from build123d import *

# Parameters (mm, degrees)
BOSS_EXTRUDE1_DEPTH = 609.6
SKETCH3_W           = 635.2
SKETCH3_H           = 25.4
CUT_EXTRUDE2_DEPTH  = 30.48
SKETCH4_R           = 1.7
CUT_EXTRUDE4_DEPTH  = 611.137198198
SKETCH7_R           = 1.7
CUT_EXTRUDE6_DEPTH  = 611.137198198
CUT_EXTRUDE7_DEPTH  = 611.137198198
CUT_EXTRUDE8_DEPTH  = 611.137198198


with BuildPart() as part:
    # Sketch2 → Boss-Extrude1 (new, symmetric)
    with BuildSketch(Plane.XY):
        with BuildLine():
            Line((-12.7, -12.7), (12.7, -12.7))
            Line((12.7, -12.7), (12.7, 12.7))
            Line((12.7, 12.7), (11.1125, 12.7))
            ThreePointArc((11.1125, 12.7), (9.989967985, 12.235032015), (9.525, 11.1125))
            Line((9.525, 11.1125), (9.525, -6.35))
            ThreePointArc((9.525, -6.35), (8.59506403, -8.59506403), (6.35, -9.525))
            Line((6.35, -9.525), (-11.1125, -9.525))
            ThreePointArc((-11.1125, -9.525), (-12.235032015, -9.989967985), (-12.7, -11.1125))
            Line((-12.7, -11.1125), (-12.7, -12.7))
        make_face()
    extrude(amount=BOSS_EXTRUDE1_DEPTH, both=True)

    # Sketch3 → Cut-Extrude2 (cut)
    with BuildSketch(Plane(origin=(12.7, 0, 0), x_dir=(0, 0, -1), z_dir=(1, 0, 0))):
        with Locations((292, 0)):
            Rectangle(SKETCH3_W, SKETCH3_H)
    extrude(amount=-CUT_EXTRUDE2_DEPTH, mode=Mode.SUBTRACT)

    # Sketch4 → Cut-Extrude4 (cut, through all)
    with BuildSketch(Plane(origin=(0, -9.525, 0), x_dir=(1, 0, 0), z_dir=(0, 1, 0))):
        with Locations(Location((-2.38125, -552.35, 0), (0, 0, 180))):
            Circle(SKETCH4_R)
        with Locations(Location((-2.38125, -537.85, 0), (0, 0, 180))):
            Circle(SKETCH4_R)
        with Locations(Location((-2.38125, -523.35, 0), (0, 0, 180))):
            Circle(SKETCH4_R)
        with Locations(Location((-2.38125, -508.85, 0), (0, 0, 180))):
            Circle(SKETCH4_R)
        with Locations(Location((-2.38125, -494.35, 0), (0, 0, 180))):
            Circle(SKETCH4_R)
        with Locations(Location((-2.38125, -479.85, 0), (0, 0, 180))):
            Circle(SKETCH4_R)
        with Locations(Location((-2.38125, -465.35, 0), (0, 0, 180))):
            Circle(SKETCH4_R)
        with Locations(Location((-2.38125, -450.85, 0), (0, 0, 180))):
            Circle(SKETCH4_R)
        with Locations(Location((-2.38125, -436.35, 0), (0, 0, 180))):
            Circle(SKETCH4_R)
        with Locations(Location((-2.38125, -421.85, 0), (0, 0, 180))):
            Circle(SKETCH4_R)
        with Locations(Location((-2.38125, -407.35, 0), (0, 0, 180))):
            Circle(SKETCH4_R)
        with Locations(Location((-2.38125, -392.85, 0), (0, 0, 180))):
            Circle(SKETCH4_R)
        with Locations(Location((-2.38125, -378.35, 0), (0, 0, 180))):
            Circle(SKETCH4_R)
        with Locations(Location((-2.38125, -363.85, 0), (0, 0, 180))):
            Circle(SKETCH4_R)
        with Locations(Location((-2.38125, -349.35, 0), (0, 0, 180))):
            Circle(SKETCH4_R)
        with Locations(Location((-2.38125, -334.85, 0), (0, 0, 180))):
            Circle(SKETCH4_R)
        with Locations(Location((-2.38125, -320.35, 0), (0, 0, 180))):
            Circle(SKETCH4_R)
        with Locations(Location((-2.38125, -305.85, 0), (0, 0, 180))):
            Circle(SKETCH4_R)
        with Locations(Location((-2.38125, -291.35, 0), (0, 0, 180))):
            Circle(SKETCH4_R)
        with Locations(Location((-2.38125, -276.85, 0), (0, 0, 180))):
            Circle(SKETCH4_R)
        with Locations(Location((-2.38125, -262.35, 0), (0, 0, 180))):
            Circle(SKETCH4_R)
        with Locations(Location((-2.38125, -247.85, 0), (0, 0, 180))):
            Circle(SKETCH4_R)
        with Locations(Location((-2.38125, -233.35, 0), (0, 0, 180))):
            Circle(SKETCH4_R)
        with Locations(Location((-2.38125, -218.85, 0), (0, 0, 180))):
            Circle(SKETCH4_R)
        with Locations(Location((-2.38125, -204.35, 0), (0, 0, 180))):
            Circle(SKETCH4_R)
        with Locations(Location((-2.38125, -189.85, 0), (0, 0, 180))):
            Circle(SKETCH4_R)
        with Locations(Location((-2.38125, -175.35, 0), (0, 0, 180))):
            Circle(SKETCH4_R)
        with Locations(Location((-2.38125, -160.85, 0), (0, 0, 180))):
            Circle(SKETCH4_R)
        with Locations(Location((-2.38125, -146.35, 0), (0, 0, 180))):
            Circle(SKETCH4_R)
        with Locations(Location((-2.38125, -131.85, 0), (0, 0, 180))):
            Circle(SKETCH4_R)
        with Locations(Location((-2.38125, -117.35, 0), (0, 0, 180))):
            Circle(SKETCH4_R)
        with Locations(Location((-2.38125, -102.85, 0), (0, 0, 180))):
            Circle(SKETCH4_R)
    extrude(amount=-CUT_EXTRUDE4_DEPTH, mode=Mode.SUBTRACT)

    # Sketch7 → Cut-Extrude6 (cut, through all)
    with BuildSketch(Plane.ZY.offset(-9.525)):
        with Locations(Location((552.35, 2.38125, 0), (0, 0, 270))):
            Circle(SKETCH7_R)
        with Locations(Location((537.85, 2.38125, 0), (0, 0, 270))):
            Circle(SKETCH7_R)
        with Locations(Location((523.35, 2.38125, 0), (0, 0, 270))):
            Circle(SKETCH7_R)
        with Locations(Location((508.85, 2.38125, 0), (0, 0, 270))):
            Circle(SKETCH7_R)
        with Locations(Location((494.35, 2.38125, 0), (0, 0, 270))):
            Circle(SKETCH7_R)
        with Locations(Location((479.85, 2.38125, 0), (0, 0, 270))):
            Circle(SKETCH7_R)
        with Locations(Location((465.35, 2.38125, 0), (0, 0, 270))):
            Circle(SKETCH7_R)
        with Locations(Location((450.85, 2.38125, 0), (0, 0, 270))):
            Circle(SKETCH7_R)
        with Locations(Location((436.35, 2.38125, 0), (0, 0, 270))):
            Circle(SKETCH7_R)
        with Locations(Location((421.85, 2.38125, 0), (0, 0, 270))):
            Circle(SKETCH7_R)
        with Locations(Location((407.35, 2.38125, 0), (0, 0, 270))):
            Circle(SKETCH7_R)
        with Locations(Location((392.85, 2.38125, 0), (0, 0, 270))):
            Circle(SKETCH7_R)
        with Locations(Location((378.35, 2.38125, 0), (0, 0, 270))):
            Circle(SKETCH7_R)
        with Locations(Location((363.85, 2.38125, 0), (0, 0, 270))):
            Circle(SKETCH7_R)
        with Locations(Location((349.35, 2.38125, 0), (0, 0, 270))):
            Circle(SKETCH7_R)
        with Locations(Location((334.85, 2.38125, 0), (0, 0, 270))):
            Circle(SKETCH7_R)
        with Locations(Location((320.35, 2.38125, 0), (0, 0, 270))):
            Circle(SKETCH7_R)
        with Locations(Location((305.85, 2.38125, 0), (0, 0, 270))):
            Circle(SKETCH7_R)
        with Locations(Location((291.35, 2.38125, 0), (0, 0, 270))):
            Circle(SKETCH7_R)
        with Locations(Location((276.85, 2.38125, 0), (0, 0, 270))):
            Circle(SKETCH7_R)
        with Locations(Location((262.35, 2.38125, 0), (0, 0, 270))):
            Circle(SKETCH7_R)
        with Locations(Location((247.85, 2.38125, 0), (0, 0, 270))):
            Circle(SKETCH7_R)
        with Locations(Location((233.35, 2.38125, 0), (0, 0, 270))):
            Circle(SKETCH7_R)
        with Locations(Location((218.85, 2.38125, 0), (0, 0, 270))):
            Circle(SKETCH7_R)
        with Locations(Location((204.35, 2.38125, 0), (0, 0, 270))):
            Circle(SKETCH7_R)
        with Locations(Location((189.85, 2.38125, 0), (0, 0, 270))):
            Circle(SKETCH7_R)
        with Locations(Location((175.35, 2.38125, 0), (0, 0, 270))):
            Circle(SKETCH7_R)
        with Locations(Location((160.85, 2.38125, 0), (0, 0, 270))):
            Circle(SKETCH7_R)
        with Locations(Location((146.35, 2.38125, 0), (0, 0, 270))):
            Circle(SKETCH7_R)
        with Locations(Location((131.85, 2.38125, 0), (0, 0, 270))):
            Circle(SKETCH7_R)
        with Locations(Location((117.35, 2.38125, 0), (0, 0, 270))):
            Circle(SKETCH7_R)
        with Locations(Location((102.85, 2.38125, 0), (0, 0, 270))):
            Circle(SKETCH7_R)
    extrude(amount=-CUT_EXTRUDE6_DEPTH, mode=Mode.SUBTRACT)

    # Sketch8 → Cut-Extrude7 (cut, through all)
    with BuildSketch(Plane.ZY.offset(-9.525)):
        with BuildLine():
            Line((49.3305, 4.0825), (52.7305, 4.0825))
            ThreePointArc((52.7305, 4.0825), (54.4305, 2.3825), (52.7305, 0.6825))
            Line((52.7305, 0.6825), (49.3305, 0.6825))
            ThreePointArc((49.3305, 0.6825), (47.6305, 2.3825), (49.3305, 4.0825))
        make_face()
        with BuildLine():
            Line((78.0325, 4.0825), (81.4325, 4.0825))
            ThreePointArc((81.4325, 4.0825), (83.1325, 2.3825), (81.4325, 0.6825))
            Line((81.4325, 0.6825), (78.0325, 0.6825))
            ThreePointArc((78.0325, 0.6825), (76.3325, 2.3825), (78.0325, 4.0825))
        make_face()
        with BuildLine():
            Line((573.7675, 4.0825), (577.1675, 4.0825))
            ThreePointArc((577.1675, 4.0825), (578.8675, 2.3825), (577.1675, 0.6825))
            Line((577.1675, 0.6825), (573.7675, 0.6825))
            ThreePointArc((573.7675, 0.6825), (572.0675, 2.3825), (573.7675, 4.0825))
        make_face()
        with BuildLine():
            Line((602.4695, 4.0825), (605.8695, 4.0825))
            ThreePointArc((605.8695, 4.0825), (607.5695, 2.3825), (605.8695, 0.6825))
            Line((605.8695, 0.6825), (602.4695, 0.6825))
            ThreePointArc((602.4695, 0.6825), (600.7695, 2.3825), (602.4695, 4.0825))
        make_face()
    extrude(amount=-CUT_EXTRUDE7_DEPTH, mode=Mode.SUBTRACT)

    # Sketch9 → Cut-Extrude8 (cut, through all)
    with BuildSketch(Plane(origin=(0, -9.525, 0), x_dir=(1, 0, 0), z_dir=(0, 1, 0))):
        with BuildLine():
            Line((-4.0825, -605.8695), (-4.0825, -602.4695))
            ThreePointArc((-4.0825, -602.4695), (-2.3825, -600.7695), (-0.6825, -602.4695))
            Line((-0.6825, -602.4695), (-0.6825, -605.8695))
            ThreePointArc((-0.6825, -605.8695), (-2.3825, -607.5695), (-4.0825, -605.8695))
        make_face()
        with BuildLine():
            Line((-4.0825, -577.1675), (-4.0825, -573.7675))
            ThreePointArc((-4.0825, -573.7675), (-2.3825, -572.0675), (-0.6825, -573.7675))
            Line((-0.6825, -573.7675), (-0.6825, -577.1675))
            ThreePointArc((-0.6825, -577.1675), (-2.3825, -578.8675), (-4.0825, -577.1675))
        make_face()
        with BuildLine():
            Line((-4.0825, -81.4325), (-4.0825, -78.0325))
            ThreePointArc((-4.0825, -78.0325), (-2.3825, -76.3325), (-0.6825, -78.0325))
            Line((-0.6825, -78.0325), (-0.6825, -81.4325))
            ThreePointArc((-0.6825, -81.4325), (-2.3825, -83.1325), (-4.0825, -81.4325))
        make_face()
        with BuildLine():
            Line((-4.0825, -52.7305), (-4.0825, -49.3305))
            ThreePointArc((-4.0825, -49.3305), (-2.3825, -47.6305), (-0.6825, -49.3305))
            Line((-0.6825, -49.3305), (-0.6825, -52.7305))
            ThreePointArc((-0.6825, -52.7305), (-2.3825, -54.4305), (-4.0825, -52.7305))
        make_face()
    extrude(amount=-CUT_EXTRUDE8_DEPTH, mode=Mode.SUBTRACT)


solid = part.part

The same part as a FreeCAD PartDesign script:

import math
import FreeCAD as App
import Part
import Sketcher
Q = App.Units.Quantity

doc = App.newDocument("Part")
body = doc.addObject("PartDesign::Body", "Body")

sketch1 = body.newObject("Sketcher::SketchObject", "Sketch")
sketch1.AttachmentSupport = (doc.getObject("XY_Plane"), [""])
sketch1.MapMode = "FlatFace"
sketch1.addGeometry(Part.LineSegment(App.Vector(-12.7, -12.7, 0), App.Vector(12.7, -12.7, 0)), False)
sketch1.addGeometry(Part.LineSegment(App.Vector(12.7, -12.7, 0), App.Vector(12.7, 12.7, 0)), False)
sketch1.addGeometry(Part.LineSegment(App.Vector(12.7, 12.7, 0), App.Vector(11.1, 12.7, 0)), False)
sketch1.addGeometry(Part.ArcOfCircle(Part.Circle(App.Vector(11.1, 11.1, 0), App.Vector(0, 0, 1), 1.6), math.radians(90), math.radians(180)), False)
sketch1.addGeometry(Part.LineSegment(App.Vector(9.5, 11.1, 0), App.Vector(9.5, -6.3, 0)), False)
sketch1.addGeometry(Part.ArcOfCircle(Part.Circle(App.Vector(6.3, -6.3, 0), App.Vector(0, 0, 1), 3.2), math.radians(-90), math.radians(0)), False)
sketch1.addGeometry(Part.LineSegment(App.Vector(6.3, -9.5, 0), App.Vector(-11.1, -9.5, 0)), False)
sketch1.addGeometry(Part.ArcOfCircle(Part.Circle(App.Vector(-11.1, -11.1, 0), App.Vector(0, 0, 1), 1.6), math.radians(90), math.radians(180)), False)
sketch1.addGeometry(Part.LineSegment(App.Vector(-12.7, -11.1, 0), App.Vector(-12.7, -12.7, 0)), False)
sketch1.addConstraint(Sketcher.Constraint("Coincident", 0, 2, 1, 1))
sketch1.addConstraint(Sketcher.Constraint("Coincident", 1, 2, 2, 1))
sketch1.addConstraint(Sketcher.Constraint("Tangent", 2, 2, 3, 1))
sketch1.addConstraint(Sketcher.Constraint("Tangent", 3, 2, 4, 1))
sketch1.addConstraint(Sketcher.Constraint("Tangent", 4, 2, 5, 2))
sketch1.addConstraint(Sketcher.Constraint("Tangent", 5, 1, 6, 1))
sketch1.addConstraint(Sketcher.Constraint("Tangent", 6, 2, 7, 1))
sketch1.addConstraint(Sketcher.Constraint("Tangent", 7, 2, 8, 1))
sketch1.addConstraint(Sketcher.Constraint("Coincident", 8, 2, 0, 1))
sketch1.addConstraint(Sketcher.Constraint("Horizontal", 0))
sketch1.addConstraint(Sketcher.Constraint("Vertical", 1))
sketch1.addConstraint(Sketcher.Constraint("Horizontal", 2))
sketch1.addConstraint(Sketcher.Constraint("Vertical", 4))
sketch1.addConstraint(Sketcher.Constraint("Horizontal", 6))
sketch1.addConstraint(Sketcher.Constraint("Vertical", 8))
sketch1.addConstraint(Sketcher.Constraint("Equal", 3, 7))
sketch1.addConstraint(Sketcher.Constraint("Symmetric", 3, 3, 7, 3, -1, 1))
sketch1.addConstraint(Sketcher.Constraint("Symmetric", 1, 2, 8, 2, -1, 1))
sketch1.addConstraint(Sketcher.Constraint("Equal", 0, 1))
sketch1.addConstraint(Sketcher.Constraint("DistanceX", 0, 1, 0, 2, Q("1 in")))
sketch1.addConstraint(Sketcher.Constraint("Radius", 3, Q("0.0625 in")))
sketch1.addConstraint(Sketcher.Constraint("Radius", 5, Q("0.125 in")))
pad1 = body.newObject("PartDesign::Pad", "Pad")
pad1.Profile = sketch1
pad1.Length = Q("48 in")
pad1.Midplane = True

sketch2 = body.newObject("Sketcher::SketchObject", "Sketch001")
sketch2.AttachmentSupport = (doc.getObject("YZ_Plane"), [""])
sketch2.MapMode = "FlatFace"
sketch2.AttachmentOffset = App.Placement(App.Vector(0, 0, 0.5 * 25.4), App.Rotation())
sketch2.addGeometry(Part.LineSegment(App.Vector(13, 26, 0), App.Vector(-13, 26, 0)), False)
sketch2.addGeometry(Part.LineSegment(App.Vector(-13, 26, 0), App.Vector(-13, -610, 0)), False)
sketch2.addGeometry(Part.LineSegment(App.Vector(-13, -610, 0), App.Vector(13, -610, 0)), False)
sketch2.addGeometry(Part.LineSegment(App.Vector(13, -610, 0), App.Vector(13, 26, 0)), False)
sketch2.addConstraint(Sketcher.Constraint("Coincident", 0, 2, 1, 1))
sketch2.addConstraint(Sketcher.Constraint("Coincident", 1, 2, 2, 1))
sketch2.addConstraint(Sketcher.Constraint("Coincident", 2, 2, 3, 1))
sketch2.addConstraint(Sketcher.Constraint("Coincident", 3, 2, 0, 1))
sketch2.addConstraint(Sketcher.Constraint("Horizontal", 0))
sketch2.addConstraint(Sketcher.Constraint("Vertical", 1))
sketch2.addConstraint(Sketcher.Constraint("Horizontal", 2))
sketch2.addConstraint(Sketcher.Constraint("Vertical", 3))
sketch2.addConstraint(Sketcher.Constraint("DistanceX", 0, 2, 0, 1, Q("1 in")))
sketch2.addConstraint(Sketcher.Constraint("DistanceY", 1, 2, -1, 1, Q("24 in")))
sketch2.addConstraint(Sketcher.Constraint("DistanceX", 0, 2, -1, 1, Q("0.5 in")))
sketch2.addConstraint(Sketcher.Constraint("DistanceY", 1, 2, 1, 1, Q("635.2 mm")))
pocket1 = body.newObject("PartDesign::Pocket", "Pocket")
pocket1.Profile = sketch2
pocket1.Length = Q("1.2 in")

sketch3 = body.newObject("Sketcher::SketchObject", "Sketch002")
sketch3.AttachmentSupport = (doc.getObject("XZ_Plane"), [""])
sketch3.MapMode = "FlatFace"
sketch3.AttachmentOffset = App.Placement(App.Vector(0, 0, 0.375 * 25.4), App.Rotation())
sketch3.addGeometry(Part.Circle(App.Vector(-2.4, 552.4, 0), App.Vector(0, 0, 1), 1.7), False)
sketch3.addGeometry(Part.Circle(App.Vector(-2.4, 537.9, 0), App.Vector(0, 0, 1), 1.7), False)
sketch3.addGeometry(Part.Circle(App.Vector(-2.4, 523.4, 0), App.Vector(0, 0, 1), 1.7), False)
sketch3.addGeometry(Part.Circle(App.Vector(-2.4, 508.9, 0), App.Vector(0, 0, 1), 1.7), False)
sketch3.addGeometry(Part.Circle(App.Vector(-2.4, 494.4, 0), App.Vector(0, 0, 1), 1.7), False)
sketch3.addGeometry(Part.Circle(App.Vector(-2.4, 479.9, 0), App.Vector(0, 0, 1), 1.7), False)
sketch3.addGeometry(Part.Circle(App.Vector(-2.4, 465.4, 0), App.Vector(0, 0, 1), 1.7), False)
sketch3.addGeometry(Part.Circle(App.Vector(-2.4, 450.9, 0), App.Vector(0, 0, 1), 1.7), False)
sketch3.addGeometry(Part.Circle(App.Vector(-2.4, 436.4, 0), App.Vector(0, 0, 1), 1.7), False)
sketch3.addGeometry(Part.Circle(App.Vector(-2.4, 421.9, 0), App.Vector(0, 0, 1), 1.7), False)
sketch3.addGeometry(Part.Circle(App.Vector(-2.4, 407.4, 0), App.Vector(0, 0, 1), 1.7), False)
sketch3.addGeometry(Part.Circle(App.Vector(-2.4, 392.9, 0), App.Vector(0, 0, 1), 1.7), False)
sketch3.addGeometry(Part.Circle(App.Vector(-2.4, 378.4, 0), App.Vector(0, 0, 1), 1.7), False)
sketch3.addGeometry(Part.Circle(App.Vector(-2.4, 363.9, 0), App.Vector(0, 0, 1), 1.7), False)
sketch3.addGeometry(Part.Circle(App.Vector(-2.4, 349.4, 0), App.Vector(0, 0, 1), 1.7), False)
sketch3.addGeometry(Part.Circle(App.Vector(-2.4, 334.9, 0), App.Vector(0, 0, 1), 1.7), False)
sketch3.addGeometry(Part.Circle(App.Vector(-2.4, 320.4, 0), App.Vector(0, 0, 1), 1.7), False)
sketch3.addGeometry(Part.Circle(App.Vector(-2.4, 305.9, 0), App.Vector(0, 0, 1), 1.7), False)
sketch3.addGeometry(Part.Circle(App.Vector(-2.4, 291.4, 0), App.Vector(0, 0, 1), 1.7), False)
sketch3.addGeometry(Part.Circle(App.Vector(-2.4, 276.9, 0), App.Vector(0, 0, 1), 1.7), False)
sketch3.addGeometry(Part.Circle(App.Vector(-2.4, 262.4, 0), App.Vector(0, 0, 1), 1.7), False)
sketch3.addGeometry(Part.Circle(App.Vector(-2.4, 247.8, 0), App.Vector(0, 0, 1), 1.7), False)
sketch3.addGeometry(Part.Circle(App.Vector(-2.4, 233.3, 0), App.Vector(0, 0, 1), 1.7), False)
sketch3.addGeometry(Part.Circle(App.Vector(-2.4, 218.8, 0), App.Vector(0, 0, 1), 1.7), False)
sketch3.addGeometry(Part.Circle(App.Vector(-2.4, 204.3, 0), App.Vector(0, 0, 1), 1.7), False)
sketch3.addGeometry(Part.Circle(App.Vector(-2.4, 189.8, 0), App.Vector(0, 0, 1), 1.7), False)
sketch3.addGeometry(Part.Circle(App.Vector(-2.4, 175.3, 0), App.Vector(0, 0, 1), 1.7), False)
sketch3.addGeometry(Part.Circle(App.Vector(-2.4, 160.8, 0), App.Vector(0, 0, 1), 1.7), False)
sketch3.addGeometry(Part.Circle(App.Vector(-2.4, 146.3, 0), App.Vector(0, 0, 1), 1.7), False)
sketch3.addGeometry(Part.Circle(App.Vector(-2.4, 131.8, 0), App.Vector(0, 0, 1), 1.7), False)
sketch3.addGeometry(Part.Circle(App.Vector(-2.4, 117.3, 0), App.Vector(0, 0, 1), 1.7), False)
sketch3.addGeometry(Part.Circle(App.Vector(-2.4, 102.8, 0), App.Vector(0, 0, 1), 1.7), False)
sketch3.addConstraint(Sketcher.Constraint("Equal", 0, 1))
sketch3.addConstraint(Sketcher.Constraint("Equal", 1, 2))
sketch3.addConstraint(Sketcher.Constraint("Equal", 2, 3))
sketch3.addConstraint(Sketcher.Constraint("Equal", 3, 4))
sketch3.addConstraint(Sketcher.Constraint("Equal", 4, 5))
sketch3.addConstraint(Sketcher.Constraint("Equal", 5, 6))
sketch3.addConstraint(Sketcher.Constraint("Equal", 6, 7))
sketch3.addConstraint(Sketcher.Constraint("Equal", 7, 8))
sketch3.addConstraint(Sketcher.Constraint("Equal", 8, 9))
sketch3.addConstraint(Sketcher.Constraint("Equal", 9, 10))
sketch3.addConstraint(Sketcher.Constraint("Equal", 10, 11))
sketch3.addConstraint(Sketcher.Constraint("Equal", 11, 12))
sketch3.addConstraint(Sketcher.Constraint("Equal", 12, 13))
sketch3.addConstraint(Sketcher.Constraint("Equal", 13, 14))
sketch3.addConstraint(Sketcher.Constraint("Equal", 14, 15))
sketch3.addConstraint(Sketcher.Constraint("Equal", 15, 16))
sketch3.addConstraint(Sketcher.Constraint("Equal", 16, 17))
sketch3.addConstraint(Sketcher.Constraint("Equal", 17, 18))
sketch3.addConstraint(Sketcher.Constraint("Equal", 18, 19))
sketch3.addConstraint(Sketcher.Constraint("Equal", 19, 20))
sketch3.addConstraint(Sketcher.Constraint("Equal", 20, 21))
sketch3.addConstraint(Sketcher.Constraint("Equal", 21, 22))
sketch3.addConstraint(Sketcher.Constraint("Equal", 22, 23))
sketch3.addConstraint(Sketcher.Constraint("Equal", 23, 24))
sketch3.addConstraint(Sketcher.Constraint("Equal", 24, 25))
sketch3.addConstraint(Sketcher.Constraint("Equal", 25, 26))
sketch3.addConstraint(Sketcher.Constraint("Equal", 26, 27))
sketch3.addConstraint(Sketcher.Constraint("Equal", 27, 28))
sketch3.addConstraint(Sketcher.Constraint("Equal", 28, 29))
sketch3.addConstraint(Sketcher.Constraint("Equal", 29, 30))
sketch3.addConstraint(Sketcher.Constraint("Equal", 30, 31))
sketch3.addConstraint(Sketcher.Constraint("Vertical", 0, 3, 1, 3))
sketch3.addConstraint(Sketcher.Constraint("Vertical", 1, 3, 2, 3))
sketch3.addConstraint(Sketcher.Constraint("Vertical", 2, 3, 3, 3))
sketch3.addConstraint(Sketcher.Constraint("Vertical", 3, 3, 4, 3))
sketch3.addConstraint(Sketcher.Constraint("Vertical", 4, 3, 5, 3))
sketch3.addConstraint(Sketcher.Constraint("Vertical", 5, 3, 6, 3))
sketch3.addConstraint(Sketcher.Constraint("Vertical", 6, 3, 7, 3))
sketch3.addConstraint(Sketcher.Constraint("Vertical", 7, 3, 8, 3))
sketch3.addConstraint(Sketcher.Constraint("Vertical", 8, 3, 9, 3))
sketch3.addConstraint(Sketcher.Constraint("Vertical", 9, 3, 10, 3))
sketch3.addConstraint(Sketcher.Constraint("Vertical", 10, 3, 11, 3))
sketch3.addConstraint(Sketcher.Constraint("Vertical", 11, 3, 12, 3))
sketch3.addConstraint(Sketcher.Constraint("Vertical", 12, 3, 13, 3))
sketch3.addConstraint(Sketcher.Constraint("Vertical", 13, 3, 14, 3))
sketch3.addConstraint(Sketcher.Constraint("Vertical", 14, 3, 15, 3))
sketch3.addConstraint(Sketcher.Constraint("Vertical", 15, 3, 16, 3))
sketch3.addConstraint(Sketcher.Constraint("Vertical", 16, 3, 17, 3))
sketch3.addConstraint(Sketcher.Constraint("Vertical", 17, 3, 18, 3))
sketch3.addConstraint(Sketcher.Constraint("Vertical", 18, 3, 19, 3))
sketch3.addConstraint(Sketcher.Constraint("Vertical", 19, 3, 20, 3))
sketch3.addConstraint(Sketcher.Constraint("Vertical", 20, 3, 21, 3))
sketch3.addConstraint(Sketcher.Constraint("Vertical", 21, 3, 22, 3))
sketch3.addConstraint(Sketcher.Constraint("Vertical", 22, 3, 23, 3))
sketch3.addConstraint(Sketcher.Constraint("Vertical", 23, 3, 24, 3))
sketch3.addConstraint(Sketcher.Constraint("Vertical", 24, 3, 25, 3))
sketch3.addConstraint(Sketcher.Constraint("Vertical", 25, 3, 26, 3))
sketch3.addConstraint(Sketcher.Constraint("Vertical", 26, 3, 27, 3))
sketch3.addConstraint(Sketcher.Constraint("Vertical", 27, 3, 28, 3))
sketch3.addConstraint(Sketcher.Constraint("Vertical", 28, 3, 29, 3))
sketch3.addConstraint(Sketcher.Constraint("Vertical", 29, 3, 30, 3))
sketch3.addConstraint(Sketcher.Constraint("Vertical", 30, 3, 31, 3))
sketch3.addConstraint(Sketcher.Constraint("Diameter", 0, Q("3.4 mm")))
sketch3.addConstraint(Sketcher.Constraint("DistanceY", -1, 1, 7, 3, Q("17.75 in")))
sketch3.addConstraint(Sketcher.Constraint("DistanceX", 0, 3, -1, 1, Q("0.09375 in")))
sketch3.addConstraint(Sketcher.Constraint("DistanceY", -1, 1, 0, 3, Q("552.35 mm")))
sketch3.addConstraint(Sketcher.Constraint("DistanceY", -1, 1, 1, 3, Q("537.85 mm")))
sketch3.addConstraint(Sketcher.Constraint("DistanceY", -1, 1, 2, 3, Q("523.35 mm")))
sketch3.addConstraint(Sketcher.Constraint("DistanceY", -1, 1, 3, 3, Q("508.85 mm")))
sketch3.addConstraint(Sketcher.Constraint("DistanceY", -1, 1, 4, 3, Q("494.35 mm")))
sketch3.addConstraint(Sketcher.Constraint("DistanceY", -1, 1, 5, 3, Q("479.85 mm")))
sketch3.addConstraint(Sketcher.Constraint("DistanceY", -1, 1, 6, 3, Q("465.35 mm")))
sketch3.addConstraint(Sketcher.Constraint("DistanceY", -1, 1, 8, 3, Q("436.35 mm")))
sketch3.addConstraint(Sketcher.Constraint("DistanceY", -1, 1, 9, 3, Q("421.85 mm")))
sketch3.addConstraint(Sketcher.Constraint("DistanceY", -1, 1, 10, 3, Q("407.35 mm")))
sketch3.addConstraint(Sketcher.Constraint("DistanceY", -1, 1, 11, 3, Q("392.85 mm")))
sketch3.addConstraint(Sketcher.Constraint("DistanceY", -1, 1, 12, 3, Q("378.35 mm")))
sketch3.addConstraint(Sketcher.Constraint("DistanceY", -1, 1, 13, 3, Q("363.85 mm")))
sketch3.addConstraint(Sketcher.Constraint("DistanceY", -1, 1, 14, 3, Q("349.35 mm")))
sketch3.addConstraint(Sketcher.Constraint("DistanceY", -1, 1, 15, 3, Q("334.85 mm")))
sketch3.addConstraint(Sketcher.Constraint("DistanceY", -1, 1, 16, 3, Q("320.35 mm")))
sketch3.addConstraint(Sketcher.Constraint("DistanceY", -1, 1, 17, 3, Q("305.85 mm")))
sketch3.addConstraint(Sketcher.Constraint("DistanceY", -1, 1, 18, 3, Q("291.35 mm")))
sketch3.addConstraint(Sketcher.Constraint("DistanceY", -1, 1, 19, 3, Q("276.85 mm")))
sketch3.addConstraint(Sketcher.Constraint("DistanceY", -1, 1, 20, 3, Q("262.35 mm")))
sketch3.addConstraint(Sketcher.Constraint("DistanceY", -1, 1, 21, 3, Q("247.85 mm")))
sketch3.addConstraint(Sketcher.Constraint("DistanceY", -1, 1, 22, 3, Q("233.35 mm")))
sketch3.addConstraint(Sketcher.Constraint("DistanceY", -1, 1, 23, 3, Q("218.85 mm")))
sketch3.addConstraint(Sketcher.Constraint("DistanceY", -1, 1, 24, 3, Q("204.35 mm")))
sketch3.addConstraint(Sketcher.Constraint("DistanceY", -1, 1, 25, 3, Q("189.85 mm")))
sketch3.addConstraint(Sketcher.Constraint("DistanceY", -1, 1, 26, 3, Q("175.35 mm")))
sketch3.addConstraint(Sketcher.Constraint("DistanceY", -1, 1, 27, 3, Q("160.85 mm")))
sketch3.addConstraint(Sketcher.Constraint("DistanceY", -1, 1, 28, 3, Q("146.35 mm")))
sketch3.addConstraint(Sketcher.Constraint("DistanceY", -1, 1, 29, 3, Q("131.85 mm")))
sketch3.addConstraint(Sketcher.Constraint("DistanceY", -1, 1, 30, 3, Q("117.35 mm")))
sketch3.addConstraint(Sketcher.Constraint("DistanceY", -1, 1, 31, 3, Q("102.85 mm")))
pocket2 = body.newObject("PartDesign::Pocket", "Pocket001")
pocket2.Profile = sketch3
pocket2.Type = "ThroughAll"
pocket2.Reversed = True

sketch4 = body.newObject("Sketcher::SketchObject", "Sketch003")
sketch4.AttachmentSupport = (doc.getObject("YZ_Plane"), [""])
sketch4.MapMode = "FlatFace"
sketch4.AttachmentOffset = App.Placement(App.Vector(0, 0, 0.375 * 25.4), App.Rotation())
sketch4.addGeometry(Part.Circle(App.Vector(2.4, 552.4, 0), App.Vector(0, 0, 1), 1.7), False)
sketch4.addGeometry(Part.Circle(App.Vector(2.4, 537.9, 0), App.Vector(0, 0, 1), 1.7), False)
sketch4.addGeometry(Part.Circle(App.Vector(2.4, 523.4, 0), App.Vector(0, 0, 1), 1.7), False)
sketch4.addGeometry(Part.Circle(App.Vector(2.4, 508.9, 0), App.Vector(0, 0, 1), 1.7), False)
sketch4.addGeometry(Part.Circle(App.Vector(2.4, 494.4, 0), App.Vector(0, 0, 1), 1.7), False)
sketch4.addGeometry(Part.Circle(App.Vector(2.4, 479.9, 0), App.Vector(0, 0, 1), 1.7), False)
sketch4.addGeometry(Part.Circle(App.Vector(2.4, 465.4, 0), App.Vector(0, 0, 1), 1.7), False)
sketch4.addGeometry(Part.Circle(App.Vector(2.4, 450.9, 0), App.Vector(0, 0, 1), 1.7), False)
sketch4.addGeometry(Part.Circle(App.Vector(2.4, 436.4, 0), App.Vector(0, 0, 1), 1.7), False)
sketch4.addGeometry(Part.Circle(App.Vector(2.4, 421.9, 0), App.Vector(0, 0, 1), 1.7), False)
sketch4.addGeometry(Part.Circle(App.Vector(2.4, 407.4, 0), App.Vector(0, 0, 1), 1.7), False)
sketch4.addGeometry(Part.Circle(App.Vector(2.4, 392.9, 0), App.Vector(0, 0, 1), 1.7), False)
sketch4.addGeometry(Part.Circle(App.Vector(2.4, 378.4, 0), App.Vector(0, 0, 1), 1.7), False)
sketch4.addGeometry(Part.Circle(App.Vector(2.4, 363.9, 0), App.Vector(0, 0, 1), 1.7), False)
sketch4.addGeometry(Part.Circle(App.Vector(2.4, 349.4, 0), App.Vector(0, 0, 1), 1.7), False)
sketch4.addGeometry(Part.Circle(App.Vector(2.4, 334.9, 0), App.Vector(0, 0, 1), 1.7), False)
sketch4.addGeometry(Part.Circle(App.Vector(2.4, 320.4, 0), App.Vector(0, 0, 1), 1.7), False)
sketch4.addGeometry(Part.Circle(App.Vector(2.4, 305.9, 0), App.Vector(0, 0, 1), 1.7), False)
sketch4.addGeometry(Part.Circle(App.Vector(2.4, 291.4, 0), App.Vector(0, 0, 1), 1.7), False)
sketch4.addGeometry(Part.Circle(App.Vector(2.4, 276.9, 0), App.Vector(0, 0, 1), 1.7), False)
sketch4.addGeometry(Part.Circle(App.Vector(2.4, 262.4, 0), App.Vector(0, 0, 1), 1.7), False)
sketch4.addGeometry(Part.Circle(App.Vector(2.4, 247.8, 0), App.Vector(0, 0, 1), 1.7), False)
sketch4.addGeometry(Part.Circle(App.Vector(2.4, 233.3, 0), App.Vector(0, 0, 1), 1.7), False)
sketch4.addGeometry(Part.Circle(App.Vector(2.4, 218.8, 0), App.Vector(0, 0, 1), 1.7), False)
sketch4.addGeometry(Part.Circle(App.Vector(2.4, 204.3, 0), App.Vector(0, 0, 1), 1.7), False)
sketch4.addGeometry(Part.Circle(App.Vector(2.4, 189.8, 0), App.Vector(0, 0, 1), 1.7), False)
sketch4.addGeometry(Part.Circle(App.Vector(2.4, 175.3, 0), App.Vector(0, 0, 1), 1.7), False)
sketch4.addGeometry(Part.Circle(App.Vector(2.4, 160.8, 0), App.Vector(0, 0, 1), 1.7), False)
sketch4.addGeometry(Part.Circle(App.Vector(2.4, 146.3, 0), App.Vector(0, 0, 1), 1.7), False)
sketch4.addGeometry(Part.Circle(App.Vector(2.4, 131.8, 0), App.Vector(0, 0, 1), 1.7), False)
sketch4.addGeometry(Part.Circle(App.Vector(2.4, 117.3, 0), App.Vector(0, 0, 1), 1.7), False)
sketch4.addGeometry(Part.Circle(App.Vector(2.4, 102.8, 0), App.Vector(0, 0, 1), 1.7), False)
sketch4.addConstraint(Sketcher.Constraint("Equal", 0, 1))
sketch4.addConstraint(Sketcher.Constraint("Equal", 1, 2))
sketch4.addConstraint(Sketcher.Constraint("Equal", 2, 3))
sketch4.addConstraint(Sketcher.Constraint("Equal", 3, 4))
sketch4.addConstraint(Sketcher.Constraint("Equal", 4, 5))
sketch4.addConstraint(Sketcher.Constraint("Equal", 5, 6))
sketch4.addConstraint(Sketcher.Constraint("Equal", 6, 7))
sketch4.addConstraint(Sketcher.Constraint("Equal", 7, 8))
sketch4.addConstraint(Sketcher.Constraint("Equal", 8, 9))
sketch4.addConstraint(Sketcher.Constraint("Equal", 9, 10))
sketch4.addConstraint(Sketcher.Constraint("Equal", 10, 11))
sketch4.addConstraint(Sketcher.Constraint("Equal", 11, 12))
sketch4.addConstraint(Sketcher.Constraint("Equal", 12, 13))
sketch4.addConstraint(Sketcher.Constraint("Equal", 13, 14))
sketch4.addConstraint(Sketcher.Constraint("Equal", 14, 15))
sketch4.addConstraint(Sketcher.Constraint("Equal", 15, 16))
sketch4.addConstraint(Sketcher.Constraint("Equal", 16, 17))
sketch4.addConstraint(Sketcher.Constraint("Equal", 17, 18))
sketch4.addConstraint(Sketcher.Constraint("Equal", 18, 19))
sketch4.addConstraint(Sketcher.Constraint("Equal", 19, 20))
sketch4.addConstraint(Sketcher.Constraint("Equal", 20, 21))
sketch4.addConstraint(Sketcher.Constraint("Equal", 21, 22))
sketch4.addConstraint(Sketcher.Constraint("Equal", 22, 23))
sketch4.addConstraint(Sketcher.Constraint("Equal", 23, 24))
sketch4.addConstraint(Sketcher.Constraint("Equal", 24, 25))
sketch4.addConstraint(Sketcher.Constraint("Equal", 25, 26))
sketch4.addConstraint(Sketcher.Constraint("Equal", 26, 27))
sketch4.addConstraint(Sketcher.Constraint("Equal", 27, 28))
sketch4.addConstraint(Sketcher.Constraint("Equal", 28, 29))
sketch4.addConstraint(Sketcher.Constraint("Equal", 29, 30))
sketch4.addConstraint(Sketcher.Constraint("Equal", 30, 31))
sketch4.addConstraint(Sketcher.Constraint("Vertical", 0, 3, 1, 3))
sketch4.addConstraint(Sketcher.Constraint("Vertical", 1, 3, 2, 3))
sketch4.addConstraint(Sketcher.Constraint("Vertical", 2, 3, 3, 3))
sketch4.addConstraint(Sketcher.Constraint("Vertical", 3, 3, 4, 3))
sketch4.addConstraint(Sketcher.Constraint("Vertical", 4, 3, 5, 3))
sketch4.addConstraint(Sketcher.Constraint("Vertical", 5, 3, 6, 3))
sketch4.addConstraint(Sketcher.Constraint("Vertical", 6, 3, 7, 3))
sketch4.addConstraint(Sketcher.Constraint("Vertical", 7, 3, 8, 3))
sketch4.addConstraint(Sketcher.Constraint("Vertical", 8, 3, 9, 3))
sketch4.addConstraint(Sketcher.Constraint("Vertical", 9, 3, 10, 3))
sketch4.addConstraint(Sketcher.Constraint("Vertical", 10, 3, 11, 3))
sketch4.addConstraint(Sketcher.Constraint("Vertical", 11, 3, 12, 3))
sketch4.addConstraint(Sketcher.Constraint("Vertical", 12, 3, 13, 3))
sketch4.addConstraint(Sketcher.Constraint("Vertical", 13, 3, 14, 3))
sketch4.addConstraint(Sketcher.Constraint("Vertical", 14, 3, 15, 3))
sketch4.addConstraint(Sketcher.Constraint("Vertical", 15, 3, 16, 3))
sketch4.addConstraint(Sketcher.Constraint("Vertical", 16, 3, 17, 3))
sketch4.addConstraint(Sketcher.Constraint("Vertical", 17, 3, 18, 3))
sketch4.addConstraint(Sketcher.Constraint("Vertical", 18, 3, 19, 3))
sketch4.addConstraint(Sketcher.Constraint("Vertical", 19, 3, 20, 3))
sketch4.addConstraint(Sketcher.Constraint("Vertical", 20, 3, 21, 3))
sketch4.addConstraint(Sketcher.Constraint("Vertical", 21, 3, 22, 3))
sketch4.addConstraint(Sketcher.Constraint("Vertical", 22, 3, 23, 3))
sketch4.addConstraint(Sketcher.Constraint("Vertical", 23, 3, 24, 3))
sketch4.addConstraint(Sketcher.Constraint("Vertical", 24, 3, 25, 3))
sketch4.addConstraint(Sketcher.Constraint("Vertical", 25, 3, 26, 3))
sketch4.addConstraint(Sketcher.Constraint("Vertical", 26, 3, 27, 3))
sketch4.addConstraint(Sketcher.Constraint("Vertical", 27, 3, 28, 3))
sketch4.addConstraint(Sketcher.Constraint("Vertical", 28, 3, 29, 3))
sketch4.addConstraint(Sketcher.Constraint("Vertical", 29, 3, 30, 3))
sketch4.addConstraint(Sketcher.Constraint("Vertical", 30, 3, 31, 3))
sketch4.addConstraint(Sketcher.Constraint("Diameter", 0, Q("3.4 mm")))
sketch4.addConstraint(Sketcher.Constraint("DistanceY", -1, 1, 7, 3, Q("17.75 in")))
sketch4.addConstraint(Sketcher.Constraint("DistanceX", -1, 1, 0, 3, Q("0.09375 in")))
sketch4.addConstraint(Sketcher.Constraint("DistanceY", -1, 1, 0, 3, Q("552.35 mm")))
sketch4.addConstraint(Sketcher.Constraint("DistanceY", -1, 1, 1, 3, Q("537.85 mm")))
sketch4.addConstraint(Sketcher.Constraint("DistanceY", -1, 1, 2, 3, Q("523.35 mm")))
sketch4.addConstraint(Sketcher.Constraint("DistanceY", -1, 1, 3, 3, Q("508.85 mm")))
sketch4.addConstraint(Sketcher.Constraint("DistanceY", -1, 1, 4, 3, Q("494.35 mm")))
sketch4.addConstraint(Sketcher.Constraint("DistanceY", -1, 1, 5, 3, Q("479.85 mm")))
sketch4.addConstraint(Sketcher.Constraint("DistanceY", -1, 1, 6, 3, Q("465.35 mm")))
sketch4.addConstraint(Sketcher.Constraint("DistanceY", -1, 1, 8, 3, Q("436.35 mm")))
sketch4.addConstraint(Sketcher.Constraint("DistanceY", -1, 1, 9, 3, Q("421.85 mm")))
sketch4.addConstraint(Sketcher.Constraint("DistanceY", -1, 1, 10, 3, Q("407.35 mm")))
sketch4.addConstraint(Sketcher.Constraint("DistanceY", -1, 1, 11, 3, Q("392.85 mm")))
sketch4.addConstraint(Sketcher.Constraint("DistanceY", -1, 1, 12, 3, Q("378.35 mm")))
sketch4.addConstraint(Sketcher.Constraint("DistanceY", -1, 1, 13, 3, Q("363.85 mm")))
sketch4.addConstraint(Sketcher.Constraint("DistanceY", -1, 1, 14, 3, Q("349.35 mm")))
sketch4.addConstraint(Sketcher.Constraint("DistanceY", -1, 1, 15, 3, Q("334.85 mm")))
sketch4.addConstraint(Sketcher.Constraint("DistanceY", -1, 1, 16, 3, Q("320.35 mm")))
sketch4.addConstraint(Sketcher.Constraint("DistanceY", -1, 1, 17, 3, Q("305.85 mm")))
sketch4.addConstraint(Sketcher.Constraint("DistanceY", -1, 1, 18, 3, Q("291.35 mm")))
sketch4.addConstraint(Sketcher.Constraint("DistanceY", -1, 1, 19, 3, Q("276.85 mm")))
sketch4.addConstraint(Sketcher.Constraint("DistanceY", -1, 1, 20, 3, Q("262.35 mm")))
sketch4.addConstraint(Sketcher.Constraint("DistanceY", -1, 1, 21, 3, Q("247.85 mm")))
sketch4.addConstraint(Sketcher.Constraint("DistanceY", -1, 1, 22, 3, Q("233.35 mm")))
sketch4.addConstraint(Sketcher.Constraint("DistanceY", -1, 1, 23, 3, Q("218.85 mm")))
sketch4.addConstraint(Sketcher.Constraint("DistanceY", -1, 1, 24, 3, Q("204.35 mm")))
sketch4.addConstraint(Sketcher.Constraint("DistanceY", -1, 1, 25, 3, Q("189.85 mm")))
sketch4.addConstraint(Sketcher.Constraint("DistanceY", -1, 1, 26, 3, Q("175.35 mm")))
sketch4.addConstraint(Sketcher.Constraint("DistanceY", -1, 1, 27, 3, Q("160.85 mm")))
sketch4.addConstraint(Sketcher.Constraint("DistanceY", -1, 1, 28, 3, Q("146.35 mm")))
sketch4.addConstraint(Sketcher.Constraint("DistanceY", -1, 1, 29, 3, Q("131.85 mm")))
sketch4.addConstraint(Sketcher.Constraint("DistanceY", -1, 1, 30, 3, Q("117.35 mm")))
sketch4.addConstraint(Sketcher.Constraint("DistanceY", -1, 1, 31, 3, Q("102.85 mm")))
pocket3 = body.newObject("PartDesign::Pocket", "Pocket002")
pocket3.Profile = sketch4
pocket3.Type = "ThroughAll"
pocket3.Reversed = True

sketch5 = body.newObject("Sketcher::SketchObject", "Sketch004")
sketch5.AttachmentSupport = (doc.getObject("YZ_Plane"), [""])
sketch5.MapMode = "FlatFace"
sketch5.AttachmentOffset = App.Placement(App.Vector(0, 0, 0.375 * 25.4), App.Rotation())
sketch5.addGeometry(Part.LineSegment(App.Vector(4.1, 52.7, 0), App.Vector(4.1, 49.3, 0)), False)
sketch5.addGeometry(Part.ArcOfCircle(Part.Circle(App.Vector(2.4, 49.3, 0), App.Vector(0, 0, 1), 1.7), math.radians(180), math.radians(360)), False)
sketch5.addGeometry(Part.LineSegment(App.Vector(0.7, 49.3, 0), App.Vector(0.7, 52.7, 0)), False)
sketch5.addGeometry(Part.ArcOfCircle(Part.Circle(App.Vector(2.4, 52.7, 0), App.Vector(0, 0, 1), 1.7), math.radians(0), math.radians(180)), False)
sketch5.addGeometry(Part.LineSegment(App.Vector(4.1, 81.4, 0), App.Vector(4.1, 78, 0)), False)
sketch5.addGeometry(Part.ArcOfCircle(Part.Circle(App.Vector(2.4, 78, 0), App.Vector(0, 0, 1), 1.7), math.radians(180), math.radians(360)), False)
sketch5.addGeometry(Part.LineSegment(App.Vector(0.7, 78, 0), App.Vector(0.7, 81.4, 0)), False)
sketch5.addGeometry(Part.ArcOfCircle(Part.Circle(App.Vector(2.4, 81.4, 0), App.Vector(0, 0, 1), 1.7), math.radians(0), math.radians(180)), False)
sketch5.addGeometry(Part.LineSegment(App.Vector(4.1, 577.2, 0), App.Vector(4.1, 573.8, 0)), False)
sketch5.addGeometry(Part.ArcOfCircle(Part.Circle(App.Vector(2.4, 573.8, 0), App.Vector(0, 0, 1), 1.7), math.radians(180), math.radians(360)), False)
sketch5.addGeometry(Part.LineSegment(App.Vector(0.7, 573.8, 0), App.Vector(0.7, 577.2, 0)), False)
sketch5.addGeometry(Part.ArcOfCircle(Part.Circle(App.Vector(2.4, 577.2, 0), App.Vector(0, 0, 1), 1.7), math.radians(0), math.radians(180)), False)
sketch5.addGeometry(Part.LineSegment(App.Vector(4.1, 605.9, 0), App.Vector(4.1, 602.5, 0)), False)
sketch5.addGeometry(Part.ArcOfCircle(Part.Circle(App.Vector(2.4, 602.5, 0), App.Vector(0, 0, 1), 1.7), math.radians(180), math.radians(360)), False)
sketch5.addGeometry(Part.LineSegment(App.Vector(0.7, 602.5, 0), App.Vector(0.7, 605.9, 0)), False)
sketch5.addGeometry(Part.ArcOfCircle(Part.Circle(App.Vector(2.4, 605.9, 0), App.Vector(0, 0, 1), 1.7), math.radians(0), math.radians(180)), False)
sketch5.addConstraint(Sketcher.Constraint("Tangent", 0, 2, 1, 2))
sketch5.addConstraint(Sketcher.Constraint("Tangent", 1, 1, 2, 1))
sketch5.addConstraint(Sketcher.Constraint("Tangent", 2, 2, 3, 2))
sketch5.addConstraint(Sketcher.Constraint("Tangent", 3, 1, 0, 1))
sketch5.addConstraint(Sketcher.Constraint("Tangent", 4, 2, 5, 2))
sketch5.addConstraint(Sketcher.Constraint("Tangent", 5, 1, 6, 1))
sketch5.addConstraint(Sketcher.Constraint("Tangent", 6, 2, 7, 2))
sketch5.addConstraint(Sketcher.Constraint("Tangent", 7, 1, 4, 1))
sketch5.addConstraint(Sketcher.Constraint("Tangent", 8, 2, 9, 2))
sketch5.addConstraint(Sketcher.Constraint("Tangent", 9, 1, 10, 1))
sketch5.addConstraint(Sketcher.Constraint("Tangent", 10, 2, 11, 2))
sketch5.addConstraint(Sketcher.Constraint("Tangent", 11, 1, 8, 1))
sketch5.addConstraint(Sketcher.Constraint("Tangent", 12, 2, 13, 2))
sketch5.addConstraint(Sketcher.Constraint("Tangent", 13, 1, 14, 1))
sketch5.addConstraint(Sketcher.Constraint("Tangent", 14, 2, 15, 2))
sketch5.addConstraint(Sketcher.Constraint("Tangent", 15, 1, 12, 1))
sketch5.addConstraint(Sketcher.Constraint("Vertical", 0))
sketch5.addConstraint(Sketcher.Constraint("Vertical", 2))
sketch5.addConstraint(Sketcher.Constraint("Vertical", 4))
sketch5.addConstraint(Sketcher.Constraint("Vertical", 6))
sketch5.addConstraint(Sketcher.Constraint("Vertical", 8))
sketch5.addConstraint(Sketcher.Constraint("Vertical", 10))
sketch5.addConstraint(Sketcher.Constraint("Vertical", 12))
sketch5.addConstraint(Sketcher.Constraint("Vertical", 14))
sketch5.addConstraint(Sketcher.Constraint("Equal", 3, 5))
sketch5.addConstraint(Sketcher.Constraint("Equal", 7, 9))
sketch5.addConstraint(Sketcher.Constraint("Equal", 11, 13))
sketch5.addConstraint(Sketcher.Constraint("Vertical", 3, 3, 5, 3))
sketch5.addConstraint(Sketcher.Constraint("Vertical", 7, 3, 9, 3))
sketch5.addConstraint(Sketcher.Constraint("Vertical", 11, 3, 13, 3))
sketch5.addConstraint(Sketcher.Constraint("Equal", 2, 4))
sketch5.addConstraint(Sketcher.Constraint("Equal", 6, 8))
sketch5.addConstraint(Sketcher.Constraint("Equal", 10, 12))
sketch5.addConstraint(Sketcher.Constraint("Radius", 1, Q("1.7 mm")))
sketch5.addConstraint(Sketcher.Constraint("DistanceY", 1, 3, 5, 3, Q("1.13 in")))
sketch5.addConstraint(Sketcher.Constraint("DistanceY", 9, 3, 13, 3, Q("1.13 in")))
sketch5.addConstraint(Sketcher.Constraint("DistanceY", 0, 2, 0, 1, Q("3.4 mm")))
sketch5.addConstraint(Sketcher.Constraint("DistanceX", -1, 1, 1, 3, Q("2.3825 mm")))
sketch5.addConstraint(Sketcher.Constraint("DistanceY", -1, 1, 1, 3, Q("49.3305 mm")))
sketch5.addConstraint(Sketcher.Constraint("DistanceY", -1, 1, 9, 3, Q("573.7675 mm")))
pocket4 = body.newObject("PartDesign::Pocket", "Pocket003")
pocket4.Profile = sketch5
pocket4.Type = "ThroughAll"
pocket4.Reversed = True

sketch6 = body.newObject("Sketcher::SketchObject", "Sketch005")
sketch6.AttachmentSupport = (doc.getObject("XZ_Plane"), [""])
sketch6.MapMode = "FlatFace"
sketch6.AttachmentOffset = App.Placement(App.Vector(0, 0, 0.375 * 25.4), App.Rotation())
sketch6.addGeometry(Part.LineSegment(App.Vector(-4.1, 602.5, 0), App.Vector(-4.1, 605.9, 0)), False)
sketch6.addGeometry(Part.ArcOfCircle(Part.Circle(App.Vector(-2.4, 605.9, 0), App.Vector(0, 0, 1), 1.7), math.radians(0), math.radians(180)), False)
sketch6.addGeometry(Part.LineSegment(App.Vector(-0.7, 605.9, 0), App.Vector(-0.7, 602.5, 0)), False)
sketch6.addGeometry(Part.ArcOfCircle(Part.Circle(App.Vector(-2.4, 602.5, 0), App.Vector(0, 0, 1), 1.7), math.radians(180), math.radians(360)), False)
sketch6.addGeometry(Part.LineSegment(App.Vector(-4.1, 573.8, 0), App.Vector(-4.1, 577.2, 0)), False)
sketch6.addGeometry(Part.ArcOfCircle(Part.Circle(App.Vector(-2.4, 577.2, 0), App.Vector(0, 0, 1), 1.7), math.radians(0), math.radians(180)), False)
sketch6.addGeometry(Part.LineSegment(App.Vector(-0.7, 577.2, 0), App.Vector(-0.7, 573.8, 0)), False)
sketch6.addGeometry(Part.ArcOfCircle(Part.Circle(App.Vector(-2.4, 573.8, 0), App.Vector(0, 0, 1), 1.7), math.radians(180), math.radians(360)), False)
sketch6.addGeometry(Part.LineSegment(App.Vector(-4.1, 78, 0), App.Vector(-4.1, 81.4, 0)), False)
sketch6.addGeometry(Part.ArcOfCircle(Part.Circle(App.Vector(-2.4, 81.4, 0), App.Vector(0, 0, 1), 1.7), math.radians(0), math.radians(180)), False)
sketch6.addGeometry(Part.LineSegment(App.Vector(-0.7, 81.4, 0), App.Vector(-0.7, 78, 0)), False)
sketch6.addGeometry(Part.ArcOfCircle(Part.Circle(App.Vector(-2.4, 78, 0), App.Vector(0, 0, 1), 1.7), math.radians(180), math.radians(360)), False)
sketch6.addGeometry(Part.LineSegment(App.Vector(-4.1, 49.3, 0), App.Vector(-4.1, 52.7, 0)), False)
sketch6.addGeometry(Part.ArcOfCircle(Part.Circle(App.Vector(-2.4, 52.7, 0), App.Vector(0, 0, 1), 1.7), math.radians(0), math.radians(180)), False)
sketch6.addGeometry(Part.LineSegment(App.Vector(-0.7, 52.7, 0), App.Vector(-0.7, 49.3, 0)), False)
sketch6.addGeometry(Part.ArcOfCircle(Part.Circle(App.Vector(-2.4, 49.3, 0), App.Vector(0, 0, 1), 1.7), math.radians(180), math.radians(360)), False)
sketch6.addConstraint(Sketcher.Constraint("Tangent", 0, 2, 1, 2))
sketch6.addConstraint(Sketcher.Constraint("Tangent", 1, 1, 2, 1))
sketch6.addConstraint(Sketcher.Constraint("Tangent", 2, 2, 3, 2))
sketch6.addConstraint(Sketcher.Constraint("Tangent", 3, 1, 0, 1))
sketch6.addConstraint(Sketcher.Constraint("Tangent", 4, 2, 5, 2))
sketch6.addConstraint(Sketcher.Constraint("Tangent", 5, 1, 6, 1))
sketch6.addConstraint(Sketcher.Constraint("Tangent", 6, 2, 7, 2))
sketch6.addConstraint(Sketcher.Constraint("Tangent", 7, 1, 4, 1))
sketch6.addConstraint(Sketcher.Constraint("Tangent", 8, 2, 9, 2))
sketch6.addConstraint(Sketcher.Constraint("Tangent", 9, 1, 10, 1))
sketch6.addConstraint(Sketcher.Constraint("Tangent", 10, 2, 11, 2))
sketch6.addConstraint(Sketcher.Constraint("Tangent", 11, 1, 8, 1))
sketch6.addConstraint(Sketcher.Constraint("Tangent", 12, 2, 13, 2))
sketch6.addConstraint(Sketcher.Constraint("Tangent", 13, 1, 14, 1))
sketch6.addConstraint(Sketcher.Constraint("Tangent", 14, 2, 15, 2))
sketch6.addConstraint(Sketcher.Constraint("Tangent", 15, 1, 12, 1))
sketch6.addConstraint(Sketcher.Constraint("Vertical", 0))
sketch6.addConstraint(Sketcher.Constraint("Vertical", 2))
sketch6.addConstraint(Sketcher.Constraint("Vertical", 4))
sketch6.addConstraint(Sketcher.Constraint("Vertical", 6))
sketch6.addConstraint(Sketcher.Constraint("Vertical", 8))
sketch6.addConstraint(Sketcher.Constraint("Vertical", 10))
sketch6.addConstraint(Sketcher.Constraint("Vertical", 12))
sketch6.addConstraint(Sketcher.Constraint("Vertical", 14))
sketch6.addConstraint(Sketcher.Constraint("Equal", 3, 5))
sketch6.addConstraint(Sketcher.Constraint("Equal", 7, 9))
sketch6.addConstraint(Sketcher.Constraint("Equal", 11, 13))
sketch6.addConstraint(Sketcher.Constraint("Vertical", 3, 3, 5, 3))
sketch6.addConstraint(Sketcher.Constraint("Vertical", 7, 3, 9, 3))
sketch6.addConstraint(Sketcher.Constraint("Vertical", 11, 3, 13, 3))
sketch6.addConstraint(Sketcher.Constraint("Equal", 2, 4))
sketch6.addConstraint(Sketcher.Constraint("Equal", 6, 8))
sketch6.addConstraint(Sketcher.Constraint("Equal", 10, 12))
sketch6.addConstraint(Sketcher.Constraint("Radius", 1, Q("1.7 mm")))
sketch6.addConstraint(Sketcher.Constraint("DistanceY", 5, 3, 1, 3, Q("1.13 in")))
sketch6.addConstraint(Sketcher.Constraint("DistanceY", 13, 3, 9, 3, Q("1.13 in")))
sketch6.addConstraint(Sketcher.Constraint("DistanceY", 0, 1, 0, 2, Q("3.4 mm")))
sketch6.addConstraint(Sketcher.Constraint("DistanceX", 1, 3, -1, 1, Q("2.3825 mm")))
sketch6.addConstraint(Sketcher.Constraint("DistanceY", -1, 1, 1, 3, Q("605.8695 mm")))
sketch6.addConstraint(Sketcher.Constraint("DistanceY", -1, 1, 9, 3, Q("81.4325 mm")))
pocket5 = body.newObject("PartDesign::Pocket", "Pocket004")
pocket5.Profile = sketch6
pocket5.Type = "ThroughAll"
pocket5.Reversed = True

doc.recompute()
